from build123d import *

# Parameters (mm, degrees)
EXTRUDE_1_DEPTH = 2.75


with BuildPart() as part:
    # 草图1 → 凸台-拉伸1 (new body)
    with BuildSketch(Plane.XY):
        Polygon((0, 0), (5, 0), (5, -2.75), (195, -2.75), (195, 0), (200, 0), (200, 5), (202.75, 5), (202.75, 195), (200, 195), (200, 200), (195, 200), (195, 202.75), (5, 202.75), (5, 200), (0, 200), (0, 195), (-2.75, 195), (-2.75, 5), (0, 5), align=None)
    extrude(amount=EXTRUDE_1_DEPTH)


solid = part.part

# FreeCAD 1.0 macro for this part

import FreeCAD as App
import Part
import Sketcher
from FreeCAD import Vector


def add_polygon(sketch, points):
    """Adds a closed chain of lines whose ends are joined by coincident constraints."""
    first, n = sketch.GeometryCount, len(points)
    for a, b in zip(points, points[1:] + points[:1]):
        sketch.addGeometry(Part.LineSegment(App.Vector(*a, 0), App.Vector(*b, 0)), False)
    for i in range(n):
        sketch.addConstraint(Sketcher.Constraint("Coincident", first + i, 2, first + (i + 1) % n, 1))

doc = App.newDocument("Part")
body = doc.addObject("PartDesign::Body", "Body")

# Sketch on XY plane
sketch1 = body.newObject("Sketcher::SketchObject", "Sketch")
sketch1.AttachmentSupport = (doc.getObject("XY_Plane"), [""])
sketch1.MapMode = "FlatFace"
add_polygon(sketch1, [(0, 0), (5, 0), (5, -2.75), (195, -2.75), (195, 0), (200, 0), (200, 5), (202.75, 5), (202.75, 195), (200, 195), (200, 200), (195, 200), (195, 202.75), (5, 202.75), (5, 200), (0, 200), (0, 195), (-2.75, 195), (-2.75, 5), (0, 5)])  # lines 0-19
sketch1.addConstraint([
    Sketcher.Constraint("Horizontal", 0),
    Sketcher.Constraint("Vertical", 1),
    Sketcher.Constraint("Horizontal", 2),
    Sketcher.Constraint("Vertical", 3),
    Sketcher.Constraint("Horizontal", 4),
    Sketcher.Constraint("Vertical", 5),
    Sketcher.Constraint("Horizontal", 6),
    Sketcher.Constraint("Vertical", 7),
    Sketcher.Constraint("Horizontal", 8),
    Sketcher.Constraint("Vertical", 9),
    Sketcher.Constraint("Horizontal", 10),
    Sketcher.Constraint("Vertical", 11),
    Sketcher.Constraint("Horizontal", 12),
    Sketcher.Constraint("Vertical", 13),
    Sketcher.Constraint("Horizontal", 14),
    Sketcher.Constraint("Vertical", 15),
    Sketcher.Constraint("Horizontal", 16),
    Sketcher.Constraint("Vertical", 17),
    Sketcher.Constraint("Horizontal", 18),
    Sketcher.Constraint("Vertical", 19),
    Sketcher.Constraint("Coincident", 19, 2, -1, 1),
    Sketcher.Constraint("PointOnObject", 3, 2, -1),
    Sketcher.Constraint("PointOnObject", 14, 2, -2),
    Sketcher.Constraint("Horizontal", 10, 2, 13, 2),
    Sketcher.Constraint("Horizontal", 8, 2, 15, 2),
    Sketcher.Constraint("Horizontal", 6, 2, 17, 2),
    Sketcher.Constraint("Vertical", 5, 2, 8, 2),
    Sketcher.Constraint("Vertical", 3, 2, 10, 2),
    Sketcher.Constraint("Vertical", 1, 2, 12, 2),
    Sketcher.Constraint("Equal", 0, 4),
    Sketcher.Constraint("Equal", 8, 16),
    Sketcher.Constraint("Equal", 18, 1),
    Sketcher.Constraint("Equal", 14, 5),
    Sketcher.Constraint("Equal", 12, 7),
    Sketcher.Constraint("Equal", 5, 9),
    Sketcher.Constraint("Equal", 3, 11),
    Sketcher.Constraint("DistanceX", 0, 1, 0, 2, 5.0),
    Sketcher.Constraint("DistanceX", 2, 1, 2, 2, 190.0),
    Sketcher.Constraint("DistanceX", 6, 1, 6, 2, 2.75),
])
pad1 = body.newObject("PartDesign::Pad", "Pad")
pad1.Profile = sketch1
pad1.Length = 2.75

doc.recompute()
